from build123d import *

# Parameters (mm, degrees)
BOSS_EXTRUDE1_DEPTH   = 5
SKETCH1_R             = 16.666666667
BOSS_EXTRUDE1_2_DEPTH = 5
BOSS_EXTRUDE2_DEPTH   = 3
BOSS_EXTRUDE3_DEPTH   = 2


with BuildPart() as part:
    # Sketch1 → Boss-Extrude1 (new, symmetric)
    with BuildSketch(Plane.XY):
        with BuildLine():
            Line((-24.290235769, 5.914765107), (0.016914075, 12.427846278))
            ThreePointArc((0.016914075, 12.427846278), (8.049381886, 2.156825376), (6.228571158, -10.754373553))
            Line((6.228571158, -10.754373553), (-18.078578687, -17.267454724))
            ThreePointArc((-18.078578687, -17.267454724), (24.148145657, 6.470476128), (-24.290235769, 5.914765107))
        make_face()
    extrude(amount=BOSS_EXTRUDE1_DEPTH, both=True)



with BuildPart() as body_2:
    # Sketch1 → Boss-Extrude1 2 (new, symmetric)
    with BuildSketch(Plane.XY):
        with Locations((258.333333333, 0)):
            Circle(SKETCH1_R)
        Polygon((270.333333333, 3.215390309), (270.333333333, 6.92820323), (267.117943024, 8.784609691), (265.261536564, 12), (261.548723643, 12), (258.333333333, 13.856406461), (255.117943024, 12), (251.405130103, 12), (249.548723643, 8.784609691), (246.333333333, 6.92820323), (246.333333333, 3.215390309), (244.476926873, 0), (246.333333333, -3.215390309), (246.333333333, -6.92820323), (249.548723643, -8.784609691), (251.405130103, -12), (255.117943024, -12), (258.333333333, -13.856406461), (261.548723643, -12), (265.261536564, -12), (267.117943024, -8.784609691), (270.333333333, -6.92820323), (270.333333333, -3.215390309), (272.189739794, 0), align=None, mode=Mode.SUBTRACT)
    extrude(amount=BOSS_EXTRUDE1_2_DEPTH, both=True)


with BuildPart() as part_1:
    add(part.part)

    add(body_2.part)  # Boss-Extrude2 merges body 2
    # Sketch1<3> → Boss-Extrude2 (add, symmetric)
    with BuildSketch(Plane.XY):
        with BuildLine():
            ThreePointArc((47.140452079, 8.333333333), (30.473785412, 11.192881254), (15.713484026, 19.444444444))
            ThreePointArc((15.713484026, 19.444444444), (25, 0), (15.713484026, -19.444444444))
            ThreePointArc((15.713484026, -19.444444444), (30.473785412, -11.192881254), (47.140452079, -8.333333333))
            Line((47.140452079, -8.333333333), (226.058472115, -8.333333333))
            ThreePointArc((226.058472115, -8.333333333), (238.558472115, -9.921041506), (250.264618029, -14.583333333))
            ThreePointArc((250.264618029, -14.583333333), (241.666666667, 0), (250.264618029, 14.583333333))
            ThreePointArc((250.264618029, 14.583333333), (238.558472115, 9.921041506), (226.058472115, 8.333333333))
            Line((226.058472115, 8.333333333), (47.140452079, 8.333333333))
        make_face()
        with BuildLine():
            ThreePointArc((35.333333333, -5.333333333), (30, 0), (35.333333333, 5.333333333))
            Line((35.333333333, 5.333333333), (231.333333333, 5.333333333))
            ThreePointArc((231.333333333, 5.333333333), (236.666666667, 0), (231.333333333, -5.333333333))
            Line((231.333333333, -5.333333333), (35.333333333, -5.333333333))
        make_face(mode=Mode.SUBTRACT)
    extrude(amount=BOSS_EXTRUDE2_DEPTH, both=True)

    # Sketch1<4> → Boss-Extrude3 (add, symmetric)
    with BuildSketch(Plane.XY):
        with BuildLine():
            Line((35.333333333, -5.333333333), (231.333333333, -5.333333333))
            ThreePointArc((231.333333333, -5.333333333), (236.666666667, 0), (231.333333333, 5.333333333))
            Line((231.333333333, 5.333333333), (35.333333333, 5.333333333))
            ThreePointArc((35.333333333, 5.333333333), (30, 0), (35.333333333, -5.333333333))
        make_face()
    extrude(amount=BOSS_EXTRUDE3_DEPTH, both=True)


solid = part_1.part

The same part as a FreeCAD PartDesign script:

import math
import FreeCAD as App
import Part
import Sketcher

V = App.Vector
Q = App.Units.Quantity


def add_polygon(sketch, points):
    """Adds a closed chain of lines whose ends are joined by coincident constraints."""
    first, n = sketch.GeometryCount, len(points)
    for a, b in zip(points, points[1:] + points[:1]):
        sketch.addGeometry(Part.LineSegment(App.Vector(*a, 0), App.Vector(*b, 0)), False)
    for i in range(n):
        sketch.addConstraint(Sketcher.Constraint("Coincident", first + i, 2, first + (i + 1) % n, 1))

doc = App.newDocument("Part")
body = doc.addObject("PartDesign::Body", "Body")

# Sketch on XY plane
sketch1 = body.newObject("Sketcher::SketchObject", "Sketch")
sketch1.AttachmentSupport = (doc.getObject("XY_Plane"), [""])
sketch1.MapMode = "FlatFace"
sketch1.addGeometry(Part.LineSegment(V(-24, 6, 0), V(0, 12, 0)), False)
sketch1.addGeometry(Part.ArcOfCircle(Part.Circle(V(-8, -2, 0), V(0, 0, 1), 17), math.radians(-31), math.radians(61)), False)
sketch1.addGeometry(Part.LineSegment(V(6, -11, 0), V(-18, -17, 0)), False)
sketch1.addGeometry(Part.ArcOfCircle(Part.Circle(V(0, 0, 0), V(0, 0, 1), 25), math.radians(-136), math.radians(166)), False)
sketch1.addConstraint(Sketcher.Constraint("Coincident", 0, 2, 1, 2))
sketch1.addConstraint(Sketcher.Constraint("Coincident", 1, 1, 2, 1))
sketch1.addConstraint(Sketcher.Constraint("Coincident", 2, 2, 3, 1))
sketch1.addConstraint(Sketcher.Constraint("Coincident", 3, 2, 0, 1))
sketch1.addConstraint(Sketcher.Constraint("Coincident", 3, 3, -1, 1))
sketch1.addConstraint(Sketcher.Constraint("Parallel", 0, 2))
sketch1.addConstraint(Sketcher.Constraint("Equal", 0, 2))
sketch1.addConstraint(Sketcher.Constraint("Radius", 3, 25.0))
sketch1.addConstraint(Sketcher.Constraint("Angle", 0, Q("15 deg")))
sketch1.addConstraint(Sketcher.Constraint("Radius", 1, 16.666667))
sketch1.addConstraint(Sketcher.Constraint("DistanceY", 2, 2, 0, 2, 29.695301))
sketch1.addConstraint(Sketcher.Constraint("DistanceX", 1, 3, -1, 1, 8.049382))
sketch1.addConstraint(Sketcher.Constraint("DistanceX", -1, 1, 1, 1, 6.228571))
pad1 = body.newObject("PartDesign::Pad", "Pad")
pad1.Profile = sketch1
pad1.Length = 10
pad1.Midplane = True
body2 = doc.addObject("PartDesign::Body", "Body001")

# Sketch on XY plane
sketch2 = body2.newObject("Sketcher::SketchObject", "Sketch001")
sketch2.AttachmentSupport = (doc.getObject("XY_Plane001"), [""])
sketch2.MapMode = "FlatFace"
sketch2.addGeometry(Part.Circle(V(258.3, 0, 0), V(0, 0, 1), 16.7), False)  # 0
add_polygon(sketch2, [(270.3, 6.9), (270.3, 3.2), (272.2, 0), (270.3, -3.2), (270.3, -6.9), (267.1, -8.8), (265.3, -12), (261.5, -12), (258.3, -13.9), (255.1, -12), (251.4, -12), (249.5, -8.8), (246.3, -6.9), (246.3, -3.2), (244.5, 0), (246.3, 3.2), (246.3, 6.9), (249.5, 8.8), (251.4, 12), (255.1, 12), (258.3, 13.9), (261.5, 12), (265.3, 12), (267.1, 8.8)])  # lines 1-24
sketch2.addConstraint(Sketcher.Constraint("Vertical", 1))
sketch2.addConstraint(Sketcher.Constraint("Vertical", 4))
sketch2.addConstraint(Sketcher.Constraint("Horizontal", 7))
sketch2.addConstraint(Sketcher.Constraint("Horizontal", 10))
sketch2.addConstraint(Sketcher.Constraint("Vertical", 13))
sketch2.addConstraint(Sketcher.Constraint("Vertical", 16))
sketch2.addConstraint(Sketcher.Constraint("Horizontal", 19))
sketch2.addConstraint(Sketcher.Constraint("Horizontal", 22))
sketch2.addConstraint(Sketcher.Constraint("Symmetric", 1, 2, 3, 2, -1))
sketch2.addConstraint(Sketcher.Constraint("Symmetric", 13, 2, 15, 2, -1))
sketch2.addConstraint(Sketcher.Constraint("Symmetric", 11, 2, 17, 2, -1))
sketch2.addConstraint(Sketcher.Constraint("Symmetric", 10, 2, 18, 2, -1))
sketch2.addConstraint(Sketcher.Constraint("Symmetric", 8, 2, 20, 2, -1))
sketch2.addConstraint(Sketcher.Constraint("Symmetric", 7, 2, 21, 2, -1))
sketch2.addConstraint(Sketcher.Constraint("Symmetric", 5, 2, 23, 2, -1))
sketch2.addConstraint(Sketcher.Constraint("PointOnObject", 0, 3, -1))
sketch2.addConstraint(Sketcher.Constraint("PointOnObject", 2, 2, -1))
sketch2.addConstraint(Sketcher.Constraint("PointOnObject", 14, 2, -1))
sketch2.addConstraint(Sketcher.Constraint("Perpendicular", 2, 5))
sketch2.addConstraint(Sketcher.Constraint("Parallel", 3, 6))
sketch2.addConstraint(Sketcher.Constraint("Parallel", 5, 8))
sketch2.addConstraint(Sketcher.Constraint("Perpendicular", 6, 9))
sketch2.addConstraint(Sketcher.Constraint("Perpendicular", 8, 11))
sketch2.addConstraint(Sketcher.Constraint("Parallel", 9, 12))
sketch2.addConstraint(Sketcher.Constraint("Parallel", 11, 14))
sketch2.addConstraint(Sketcher.Constraint("Perpendicular", 14, 17))
sketch2.addConstraint(Sketcher.Constraint("Parallel", 17, 20))
sketch2.addConstraint(Sketcher.Constraint("Perpendicular", 20, 23))
sketch2.addConstraint(Sketcher.Constraint("Parallel", 21, 24))
sketch2.addConstraint(Sketcher.Constraint("Horizontal", 7, 2, 9, 2))
sketch2.addConstraint(Sketcher.Constraint("Horizontal", 5, 2, 11, 2))
sketch2.addConstraint(Sketcher.Constraint("Horizontal", 4, 2, 12, 2))
sketch2.addConstraint(Sketcher.Constraint("Horizontal", 3, 2, 13, 2))
sketch2.addConstraint(Sketcher.Constraint("Vertical", 0, 3, 8, 2))
sketch2.addConstraint(Sketcher.Constraint("Equal", 7, 10))
sketch2.addConstraint(Sketcher.Constraint("Equal", 22, 1))
sketch2.addConstraint(Sketcher.Constraint("Equal", 3, 5))
sketch2.addConstraint(Sketcher.Constraint("Equal", 5, 6))
sketch2.addConstraint(Sketcher.Constraint("Equal", 6, 8))
sketch2.addConstraint(Sketcher.Constraint("Angle", 2, Q("-60 deg")))
sketch2.addConstraint(Sketcher.Constraint("DistanceY", 6, 2, -1, 1, 12.0))
sketch2.addConstraint(Sketcher.Constraint("Diameter", 0, 33.333333))
sketch2.addConstraint(Sketcher.Constraint("DistanceX", 7, 2, 7, 1, 3.712813))
sketch2.addConstraint(Sketcher.Constraint("DistanceX", -1, 1, 2, 2, 272.18974))
pad2 = body2.newObject("PartDesign::Pad", "Pad001")
pad2.Profile = sketch2
pad2.Length = 10
pad2.Midplane = True
body.AllowCompound = True
doc.recompute()

boolean = body.newObject("PartDesign::Boolean", "Boolean")
boolean.Type = "Fuse"
boolean.addObjects([body2])

# Sketch on XY plane
sketch3 = body.newObject("Sketcher::SketchObject", "Sketch002")
sketch3.AttachmentSupport = (doc.getObject("XY_Plane"), [""])
sketch3.MapMode = "FlatFace"
sketch3.addGeometry(Part.ArcOfCircle(Part.Circle(V(47, 58, 0), V(0, 0, 1), 50), math.radians(-129), math.radians(-90)), False)
sketch3.addGeometry(Part.ArcOfCircle(Part.Circle(V(0, 0, 0), V(0, 0, 1), 25), math.radians(-51), math.radians(51)), False)
sketch3.addGeometry(Part.ArcOfCircle(Part.Circle(V(47, -58, 0), V(0, 0, 1), 50), math.radians(90), math.radians(129)), False)
sketch3.addGeometry(Part.LineSegment(V(47, -8, 0), V(226, -8, 0)), False)
sketch3.addGeometry(Part.ArcOfCircle(Part.Circle(V(226, -58, 0), V(0, 0, 1), 50), math.radians(61), math.radians(90)), False)
sketch3.addGeometry(Part.ArcOfCircle(Part.Circle(V(258, 0, 0), V(0, 0, 1), 17), math.radians(119), math.radians(241)), False)
sketch3.addGeometry(Part.ArcOfCircle(Part.Circle(V(226, 58, 0), V(0, 0, 1), 50), math.radians(-90), math.radians(-61)), False)
sketch3.addGeometry(Part.LineSegment(V(226, 8, 0), V(47, 8, 0)), False)
sketch3.addGeometry(Part.LineSegment(V(231, -5, 0), V(35, -5, 0)), False)
sketch3.addGeometry(Part.ArcOfCircle(Part.Circle(V(35, 0, 0), V(0, 0, 1), 5), math.radians(90), math.radians(270)), False)
sketch3.addGeometry(Part.LineSegment(V(35, 5, 0), V(231, 5, 0)), False)
sketch3.addGeometry(Part.ArcOfCircle(Part.Circle(V(231, 0, 0), V(0, 0, 1), 5), math.radians(-90), math.radians(90)), False)
sketch3.addConstraint(Sketcher.Constraint("Tangent", 0, 1, 1, 2))
sketch3.addConstraint(Sketcher.Constraint("Tangent", 1, 1, 2, 2))
sketch3.addConstraint(Sketcher.Constraint("Tangent", 2, 1, 3, 1))
sketch3.addConstraint(Sketcher.Constraint("Tangent", 3, 2, 4, 2))
sketch3.addConstraint(Sketcher.Constraint("Tangent", 4, 1, 5, 2))
sketch3.addConstraint(Sketcher.Constraint("Tangent", 5, 1, 6, 2))
sketch3.addConstraint(Sketcher.Constraint("Tangent", 6, 1, 7, 1))
sketch3.addConstraint(Sketcher.Constraint("Tangent", 7, 2, 0, 2))
sketch3.addConstraint(Sketcher.Constraint("Tangent", 8, 2, 9, 2))
sketch3.addConstraint(Sketcher.Constraint("Tangent", 9, 1, 10, 1))
sketch3.addConstraint(Sketcher.Constraint("Tangent", 10, 2, 11, 2))
sketch3.addConstraint(Sketcher.Constraint("Tangent", 11, 1, 8, 1))
sketch3.addConstraint(Sketcher.Constraint("Horizontal", 3))
sketch3.addConstraint(Sketcher.Constraint("Horizontal", 7))
sketch3.addConstraint(Sketcher.Constraint("Horizontal", 8))
sketch3.addConstraint(Sketcher.Constraint("Horizontal", 10))
sketch3.addConstraint(Sketcher.Constraint("Coincident", 1, 3, -1, 1))
sketch3.addConstraint(Sketcher.Constraint("Equal", 0, 2))
sketch3.addConstraint(Sketcher.Constraint("Equal", 2, 4))
sketch3.addConstraint(Sketcher.Constraint("Equal", 4, 6))
sketch3.addConstraint(Sketcher.Constraint("Symmetric", 4, 3, 6, 3, -1))
sketch3.addConstraint(Sketcher.Constraint("PointOnObject", 9, 3, -1))
sketch3.addConstraint(Sketcher.Constraint("Radius", 0, 50.0))
sketch3.addConstraint(Sketcher.Constraint("Radius", 1, 25.0))
sketch3.addConstraint(Sketcher.Constraint("DistanceX", 8, 2, 8, 1, 196.0))
sketch3.addConstraint(Sketcher.Constraint("DistanceX", 11, 3, 5, 3, 27.0))
sketch3.addConstraint(Sketcher.Constraint("DistanceY", 2, 1, 8, 2, 3.0))
sketch3.addConstraint(Sketcher.Constraint("DistanceY", 4, 1, 3, 2, 6.25))
sketch3.addConstraint(Sketcher.Constraint("Radius", 5, 16.666667))
sketch3.addConstraint(Sketcher.Constraint("DistanceX", 3, 1, 3, 2, 178.91802))
pad3 = body.newObject("PartDesign::Pad", "Pad002")
pad3.Profile = sketch3
pad3.Length = 6
pad3.Midplane = True

# Sketch on XY plane
sketch4 = body.newObject("Sketcher::SketchObject", "Sketch003")
sketch4.AttachmentSupport = (doc.getObject("XY_Plane"), [""])
sketch4.MapMode = "FlatFace"
sketch4.addGeometry(Part.LineSegment(V(35, -5, 0), V(231, -5, 0)), False)
sketch4.addGeometry(Part.ArcOfCircle(Part.Circle(V(231, 0, 0), V(0, 0, 1), 5), math.radians(-90), math.radians(90)), False)
sketch4.addGeometry(Part.LineSegment(V(231, 5, 0), V(35, 5, 0)), False)
sketch4.addGeometry(Part.ArcOfCircle(Part.Circle(V(35, 0, 0), V(0, 0, 1), 5), math.radians(90), math.radians(270)), False)
sketch4.addConstraint(Sketcher.Constraint("Tangent", 0, 2, 1, 1))
sketch4.addConstraint(Sketcher.Constraint("Tangent", 1, 2, 2, 1))
sketch4.addConstraint(Sketcher.Constraint("Tangent", 2, 2, 3, 1))
sketch4.addConstraint(Sketcher.Constraint("Tangent", 3, 2, 0, 1))
sketch4.addConstraint(Sketcher.Constraint("Horizontal", 0))
sketch4.addConstraint(Sketcher.Constraint("Horizontal", 2))
sketch4.addConstraint(Sketcher.Constraint("PointOnObject", 1, 3, -1))
sketch4.addConstraint(Sketcher.Constraint("DistanceX", 0, 1, 0, 2, 196.0))
sketch4.addConstraint(Sketcher.Constraint("Radius", 1, 5.333333))
sketch4.addConstraint(Sketcher.Constraint("DistanceX", -1, 1, 1, 3, 231.333333))
pad4 = body.newObject("PartDesign::Pad", "Pad003")
pad4.Profile = sketch4
pad4.Length = 4
pad4.Midplane = True

doc.recompute()
